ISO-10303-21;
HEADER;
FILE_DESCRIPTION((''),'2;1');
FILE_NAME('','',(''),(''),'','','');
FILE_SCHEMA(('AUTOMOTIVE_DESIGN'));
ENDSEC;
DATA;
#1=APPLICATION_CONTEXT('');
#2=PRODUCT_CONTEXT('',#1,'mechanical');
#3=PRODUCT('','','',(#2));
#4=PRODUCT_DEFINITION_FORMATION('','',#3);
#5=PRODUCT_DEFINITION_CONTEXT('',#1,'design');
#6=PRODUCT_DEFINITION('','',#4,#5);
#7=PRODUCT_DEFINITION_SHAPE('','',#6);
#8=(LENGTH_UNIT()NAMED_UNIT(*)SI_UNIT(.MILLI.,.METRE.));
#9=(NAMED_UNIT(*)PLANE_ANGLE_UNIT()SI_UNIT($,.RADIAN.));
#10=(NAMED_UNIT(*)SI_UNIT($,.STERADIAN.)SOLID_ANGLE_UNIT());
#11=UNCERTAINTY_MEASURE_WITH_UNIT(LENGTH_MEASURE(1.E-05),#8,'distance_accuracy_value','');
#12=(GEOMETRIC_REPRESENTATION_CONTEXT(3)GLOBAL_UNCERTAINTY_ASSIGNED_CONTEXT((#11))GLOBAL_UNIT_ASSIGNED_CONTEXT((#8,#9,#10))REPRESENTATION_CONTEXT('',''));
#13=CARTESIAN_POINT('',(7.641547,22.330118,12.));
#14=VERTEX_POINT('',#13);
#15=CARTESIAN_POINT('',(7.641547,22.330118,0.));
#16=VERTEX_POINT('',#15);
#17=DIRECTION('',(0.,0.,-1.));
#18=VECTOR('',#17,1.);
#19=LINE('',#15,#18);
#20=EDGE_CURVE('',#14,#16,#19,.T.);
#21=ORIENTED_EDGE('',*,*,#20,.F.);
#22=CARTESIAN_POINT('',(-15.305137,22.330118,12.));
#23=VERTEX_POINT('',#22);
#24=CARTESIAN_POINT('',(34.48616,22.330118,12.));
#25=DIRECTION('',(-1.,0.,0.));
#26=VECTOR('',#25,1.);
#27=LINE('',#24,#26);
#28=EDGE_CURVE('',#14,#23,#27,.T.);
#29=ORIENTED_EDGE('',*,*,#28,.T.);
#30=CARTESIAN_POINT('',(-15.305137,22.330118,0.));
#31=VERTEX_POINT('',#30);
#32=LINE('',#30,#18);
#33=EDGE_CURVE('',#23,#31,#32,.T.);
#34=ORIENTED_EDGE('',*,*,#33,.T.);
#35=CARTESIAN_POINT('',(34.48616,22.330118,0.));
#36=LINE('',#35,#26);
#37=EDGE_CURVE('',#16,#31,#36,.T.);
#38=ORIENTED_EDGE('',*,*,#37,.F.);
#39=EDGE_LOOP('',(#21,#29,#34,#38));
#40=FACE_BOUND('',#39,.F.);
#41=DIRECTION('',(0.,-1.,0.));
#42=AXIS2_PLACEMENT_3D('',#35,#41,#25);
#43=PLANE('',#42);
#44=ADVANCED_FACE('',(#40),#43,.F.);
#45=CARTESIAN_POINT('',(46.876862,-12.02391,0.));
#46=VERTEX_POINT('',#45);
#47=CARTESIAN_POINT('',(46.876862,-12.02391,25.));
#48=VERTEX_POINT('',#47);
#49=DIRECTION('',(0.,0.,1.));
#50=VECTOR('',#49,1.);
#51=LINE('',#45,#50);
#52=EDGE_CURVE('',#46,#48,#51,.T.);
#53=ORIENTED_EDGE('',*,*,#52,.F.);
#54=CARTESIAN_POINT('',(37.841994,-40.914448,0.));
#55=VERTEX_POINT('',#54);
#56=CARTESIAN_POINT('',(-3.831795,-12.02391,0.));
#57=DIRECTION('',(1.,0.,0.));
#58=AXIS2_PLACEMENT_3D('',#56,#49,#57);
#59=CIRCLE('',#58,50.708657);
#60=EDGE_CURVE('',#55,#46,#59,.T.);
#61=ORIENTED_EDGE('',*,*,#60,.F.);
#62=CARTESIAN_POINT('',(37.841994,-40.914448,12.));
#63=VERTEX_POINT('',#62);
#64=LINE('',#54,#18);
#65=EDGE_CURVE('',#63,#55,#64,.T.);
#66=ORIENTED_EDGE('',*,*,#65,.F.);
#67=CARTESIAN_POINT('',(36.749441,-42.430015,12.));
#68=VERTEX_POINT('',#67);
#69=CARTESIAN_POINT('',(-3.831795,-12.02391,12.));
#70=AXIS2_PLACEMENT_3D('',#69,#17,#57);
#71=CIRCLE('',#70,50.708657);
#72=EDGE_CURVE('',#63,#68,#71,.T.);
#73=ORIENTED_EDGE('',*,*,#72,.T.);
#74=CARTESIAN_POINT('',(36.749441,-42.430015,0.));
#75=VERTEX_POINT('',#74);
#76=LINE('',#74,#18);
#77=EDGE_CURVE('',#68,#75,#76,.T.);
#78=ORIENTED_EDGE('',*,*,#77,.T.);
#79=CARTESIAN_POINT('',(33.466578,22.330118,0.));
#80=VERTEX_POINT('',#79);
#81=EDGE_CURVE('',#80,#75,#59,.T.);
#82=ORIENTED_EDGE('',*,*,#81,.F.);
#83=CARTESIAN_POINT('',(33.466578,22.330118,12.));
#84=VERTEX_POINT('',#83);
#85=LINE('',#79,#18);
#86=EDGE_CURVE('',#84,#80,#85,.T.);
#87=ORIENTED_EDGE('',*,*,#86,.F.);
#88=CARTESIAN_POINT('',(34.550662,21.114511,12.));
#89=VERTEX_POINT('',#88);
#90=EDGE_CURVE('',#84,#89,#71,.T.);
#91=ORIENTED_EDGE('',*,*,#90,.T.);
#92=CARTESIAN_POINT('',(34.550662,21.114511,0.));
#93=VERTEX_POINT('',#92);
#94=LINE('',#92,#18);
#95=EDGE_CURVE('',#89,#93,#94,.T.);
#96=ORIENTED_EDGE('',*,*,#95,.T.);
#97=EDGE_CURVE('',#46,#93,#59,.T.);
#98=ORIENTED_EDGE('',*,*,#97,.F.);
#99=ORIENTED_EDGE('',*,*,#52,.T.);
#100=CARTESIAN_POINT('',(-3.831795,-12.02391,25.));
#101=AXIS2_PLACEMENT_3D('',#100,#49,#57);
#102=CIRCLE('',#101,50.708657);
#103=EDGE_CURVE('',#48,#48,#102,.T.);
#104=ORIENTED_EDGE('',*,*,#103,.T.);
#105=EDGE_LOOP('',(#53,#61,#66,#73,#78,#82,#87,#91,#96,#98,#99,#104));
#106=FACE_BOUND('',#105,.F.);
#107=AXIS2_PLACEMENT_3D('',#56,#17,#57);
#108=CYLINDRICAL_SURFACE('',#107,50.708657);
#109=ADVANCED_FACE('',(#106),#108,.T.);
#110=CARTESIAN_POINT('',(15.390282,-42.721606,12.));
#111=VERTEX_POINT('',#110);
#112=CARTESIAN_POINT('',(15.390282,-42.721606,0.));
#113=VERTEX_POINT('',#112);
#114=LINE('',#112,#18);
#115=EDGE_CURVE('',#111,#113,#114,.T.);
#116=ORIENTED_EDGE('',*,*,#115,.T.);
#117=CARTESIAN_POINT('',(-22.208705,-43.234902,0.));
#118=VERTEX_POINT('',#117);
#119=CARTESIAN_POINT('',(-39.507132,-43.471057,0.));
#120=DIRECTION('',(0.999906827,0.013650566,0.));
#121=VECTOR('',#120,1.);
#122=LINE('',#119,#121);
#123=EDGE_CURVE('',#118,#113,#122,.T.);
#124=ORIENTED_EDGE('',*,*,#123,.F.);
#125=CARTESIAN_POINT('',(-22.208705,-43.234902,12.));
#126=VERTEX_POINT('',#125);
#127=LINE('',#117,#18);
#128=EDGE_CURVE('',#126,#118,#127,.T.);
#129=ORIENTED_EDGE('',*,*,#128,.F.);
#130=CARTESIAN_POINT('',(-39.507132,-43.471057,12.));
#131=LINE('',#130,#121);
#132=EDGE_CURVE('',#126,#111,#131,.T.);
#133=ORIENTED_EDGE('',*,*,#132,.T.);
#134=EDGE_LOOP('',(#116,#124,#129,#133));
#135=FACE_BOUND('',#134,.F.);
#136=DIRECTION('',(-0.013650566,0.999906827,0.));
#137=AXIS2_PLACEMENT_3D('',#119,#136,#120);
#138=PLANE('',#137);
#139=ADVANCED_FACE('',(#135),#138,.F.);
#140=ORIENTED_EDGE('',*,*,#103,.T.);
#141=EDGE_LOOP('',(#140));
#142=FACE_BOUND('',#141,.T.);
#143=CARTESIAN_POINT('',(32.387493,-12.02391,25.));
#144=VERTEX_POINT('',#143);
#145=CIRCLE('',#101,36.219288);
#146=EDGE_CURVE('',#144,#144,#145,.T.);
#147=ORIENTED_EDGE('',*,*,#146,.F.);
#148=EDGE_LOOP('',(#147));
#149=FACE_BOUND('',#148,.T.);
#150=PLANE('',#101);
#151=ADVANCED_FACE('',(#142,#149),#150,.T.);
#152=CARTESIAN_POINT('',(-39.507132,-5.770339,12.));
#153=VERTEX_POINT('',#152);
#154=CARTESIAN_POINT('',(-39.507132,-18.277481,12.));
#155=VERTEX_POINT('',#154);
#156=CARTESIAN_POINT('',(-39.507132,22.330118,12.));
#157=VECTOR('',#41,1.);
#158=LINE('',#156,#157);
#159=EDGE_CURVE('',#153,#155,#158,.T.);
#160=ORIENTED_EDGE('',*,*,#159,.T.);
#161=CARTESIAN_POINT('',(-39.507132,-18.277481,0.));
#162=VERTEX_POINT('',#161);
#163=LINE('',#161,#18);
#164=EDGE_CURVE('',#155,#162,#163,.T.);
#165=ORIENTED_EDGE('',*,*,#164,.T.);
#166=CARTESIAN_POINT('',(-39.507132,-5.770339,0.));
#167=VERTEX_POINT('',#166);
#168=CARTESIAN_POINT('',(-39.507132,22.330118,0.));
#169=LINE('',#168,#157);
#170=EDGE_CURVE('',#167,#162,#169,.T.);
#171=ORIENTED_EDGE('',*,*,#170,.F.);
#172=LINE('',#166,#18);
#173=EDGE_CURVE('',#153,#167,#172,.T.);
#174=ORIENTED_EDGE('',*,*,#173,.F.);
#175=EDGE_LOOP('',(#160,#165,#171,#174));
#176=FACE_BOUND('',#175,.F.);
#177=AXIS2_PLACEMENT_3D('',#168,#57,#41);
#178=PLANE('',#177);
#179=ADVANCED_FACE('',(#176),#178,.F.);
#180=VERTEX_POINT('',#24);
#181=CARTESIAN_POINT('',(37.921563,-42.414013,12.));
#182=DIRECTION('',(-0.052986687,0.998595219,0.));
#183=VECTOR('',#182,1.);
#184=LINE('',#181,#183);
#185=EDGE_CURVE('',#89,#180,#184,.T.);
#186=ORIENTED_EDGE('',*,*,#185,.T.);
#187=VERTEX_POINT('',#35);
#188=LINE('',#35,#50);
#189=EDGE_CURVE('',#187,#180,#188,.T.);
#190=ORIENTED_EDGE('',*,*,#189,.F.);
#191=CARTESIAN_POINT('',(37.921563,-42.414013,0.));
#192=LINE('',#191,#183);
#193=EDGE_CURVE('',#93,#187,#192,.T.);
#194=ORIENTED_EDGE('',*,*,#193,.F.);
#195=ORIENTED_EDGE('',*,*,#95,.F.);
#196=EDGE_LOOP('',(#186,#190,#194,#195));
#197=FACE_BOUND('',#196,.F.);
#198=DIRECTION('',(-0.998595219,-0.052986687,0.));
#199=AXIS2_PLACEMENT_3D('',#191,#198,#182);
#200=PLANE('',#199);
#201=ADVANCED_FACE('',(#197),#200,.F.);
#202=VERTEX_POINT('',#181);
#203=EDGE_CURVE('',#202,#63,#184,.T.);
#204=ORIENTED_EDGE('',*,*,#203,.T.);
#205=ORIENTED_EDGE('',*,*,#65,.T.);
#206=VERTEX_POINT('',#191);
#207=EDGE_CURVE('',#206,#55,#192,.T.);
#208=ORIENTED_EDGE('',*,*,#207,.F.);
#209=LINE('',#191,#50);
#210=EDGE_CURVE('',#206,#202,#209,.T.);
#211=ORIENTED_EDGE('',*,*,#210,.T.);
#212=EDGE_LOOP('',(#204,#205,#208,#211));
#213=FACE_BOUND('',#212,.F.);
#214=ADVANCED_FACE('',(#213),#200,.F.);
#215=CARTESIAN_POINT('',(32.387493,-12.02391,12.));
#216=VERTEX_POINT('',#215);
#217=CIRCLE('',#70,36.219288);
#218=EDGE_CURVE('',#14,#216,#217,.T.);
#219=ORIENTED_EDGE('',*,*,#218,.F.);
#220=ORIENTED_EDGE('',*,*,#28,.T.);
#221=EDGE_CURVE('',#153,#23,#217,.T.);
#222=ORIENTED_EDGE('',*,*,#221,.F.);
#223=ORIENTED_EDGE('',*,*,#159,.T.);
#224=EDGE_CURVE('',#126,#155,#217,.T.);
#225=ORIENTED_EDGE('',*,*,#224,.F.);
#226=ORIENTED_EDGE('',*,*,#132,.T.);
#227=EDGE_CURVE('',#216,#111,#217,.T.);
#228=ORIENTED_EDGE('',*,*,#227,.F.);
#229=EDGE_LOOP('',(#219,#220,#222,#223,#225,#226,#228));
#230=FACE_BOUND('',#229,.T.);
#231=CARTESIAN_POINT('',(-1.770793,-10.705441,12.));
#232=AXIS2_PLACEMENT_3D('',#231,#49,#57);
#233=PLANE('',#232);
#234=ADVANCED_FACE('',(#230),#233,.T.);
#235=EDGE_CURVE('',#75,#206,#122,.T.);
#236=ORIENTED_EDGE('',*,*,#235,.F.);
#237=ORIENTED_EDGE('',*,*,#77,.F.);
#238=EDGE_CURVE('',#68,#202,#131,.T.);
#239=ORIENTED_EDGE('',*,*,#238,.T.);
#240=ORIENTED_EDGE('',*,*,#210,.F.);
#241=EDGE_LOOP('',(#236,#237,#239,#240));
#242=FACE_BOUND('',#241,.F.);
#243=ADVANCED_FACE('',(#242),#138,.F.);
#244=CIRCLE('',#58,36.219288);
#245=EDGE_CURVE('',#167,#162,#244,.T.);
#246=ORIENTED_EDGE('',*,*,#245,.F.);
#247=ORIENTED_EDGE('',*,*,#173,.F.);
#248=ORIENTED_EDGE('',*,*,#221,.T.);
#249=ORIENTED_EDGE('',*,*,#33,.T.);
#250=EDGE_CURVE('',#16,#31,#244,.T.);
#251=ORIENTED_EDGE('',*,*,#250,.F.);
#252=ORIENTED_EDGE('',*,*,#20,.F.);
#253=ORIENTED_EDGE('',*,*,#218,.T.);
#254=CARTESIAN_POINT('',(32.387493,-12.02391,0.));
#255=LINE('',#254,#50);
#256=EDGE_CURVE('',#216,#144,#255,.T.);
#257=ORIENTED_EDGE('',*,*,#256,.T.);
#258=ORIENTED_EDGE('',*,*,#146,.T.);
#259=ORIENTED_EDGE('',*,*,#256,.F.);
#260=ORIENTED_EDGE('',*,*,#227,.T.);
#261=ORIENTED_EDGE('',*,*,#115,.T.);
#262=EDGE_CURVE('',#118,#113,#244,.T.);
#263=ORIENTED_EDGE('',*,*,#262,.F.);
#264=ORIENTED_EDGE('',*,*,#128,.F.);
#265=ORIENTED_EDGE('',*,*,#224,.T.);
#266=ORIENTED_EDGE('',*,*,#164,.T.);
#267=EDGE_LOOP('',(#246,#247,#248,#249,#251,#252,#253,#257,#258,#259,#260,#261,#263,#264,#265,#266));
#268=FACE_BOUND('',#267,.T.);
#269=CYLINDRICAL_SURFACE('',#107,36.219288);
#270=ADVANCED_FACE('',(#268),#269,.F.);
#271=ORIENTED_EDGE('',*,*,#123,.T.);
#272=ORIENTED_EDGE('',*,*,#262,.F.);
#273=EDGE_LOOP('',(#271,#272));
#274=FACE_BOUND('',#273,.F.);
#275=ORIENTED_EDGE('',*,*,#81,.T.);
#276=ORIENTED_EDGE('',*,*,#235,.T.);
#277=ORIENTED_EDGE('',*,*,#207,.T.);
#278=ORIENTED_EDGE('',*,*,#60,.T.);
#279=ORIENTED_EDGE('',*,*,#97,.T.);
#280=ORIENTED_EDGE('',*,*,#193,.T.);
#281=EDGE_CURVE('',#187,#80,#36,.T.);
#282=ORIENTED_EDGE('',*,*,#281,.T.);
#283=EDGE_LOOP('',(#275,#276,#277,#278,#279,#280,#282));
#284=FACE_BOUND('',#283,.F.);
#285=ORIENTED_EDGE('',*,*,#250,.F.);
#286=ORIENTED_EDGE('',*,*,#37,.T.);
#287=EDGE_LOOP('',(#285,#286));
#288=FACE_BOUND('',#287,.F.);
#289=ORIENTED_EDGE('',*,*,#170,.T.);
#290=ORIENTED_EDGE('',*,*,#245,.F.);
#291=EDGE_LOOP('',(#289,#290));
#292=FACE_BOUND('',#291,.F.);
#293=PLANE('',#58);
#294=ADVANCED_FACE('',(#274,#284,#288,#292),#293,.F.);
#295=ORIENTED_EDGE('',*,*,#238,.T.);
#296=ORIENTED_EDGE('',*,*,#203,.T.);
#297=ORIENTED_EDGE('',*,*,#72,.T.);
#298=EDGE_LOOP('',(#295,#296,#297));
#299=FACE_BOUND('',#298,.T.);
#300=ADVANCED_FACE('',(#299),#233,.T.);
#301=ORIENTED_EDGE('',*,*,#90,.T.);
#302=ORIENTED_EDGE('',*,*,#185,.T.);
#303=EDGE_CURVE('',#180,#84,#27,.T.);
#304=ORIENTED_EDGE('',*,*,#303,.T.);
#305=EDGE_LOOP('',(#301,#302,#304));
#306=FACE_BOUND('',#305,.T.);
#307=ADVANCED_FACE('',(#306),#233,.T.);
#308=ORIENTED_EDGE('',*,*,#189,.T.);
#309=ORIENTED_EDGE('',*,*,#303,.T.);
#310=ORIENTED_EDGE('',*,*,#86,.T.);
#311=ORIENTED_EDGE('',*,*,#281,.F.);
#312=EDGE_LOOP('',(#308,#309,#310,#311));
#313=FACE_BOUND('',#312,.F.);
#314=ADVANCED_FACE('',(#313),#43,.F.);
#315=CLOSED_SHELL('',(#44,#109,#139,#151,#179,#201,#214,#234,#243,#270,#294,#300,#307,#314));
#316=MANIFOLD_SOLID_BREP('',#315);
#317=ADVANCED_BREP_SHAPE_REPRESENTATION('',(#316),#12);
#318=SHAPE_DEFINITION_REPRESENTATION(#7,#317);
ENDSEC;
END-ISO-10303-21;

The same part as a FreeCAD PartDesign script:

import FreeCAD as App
import Part
import Sketcher
Q = App.Units.Quantity


def add_polygon(sketch, points):
    """Adds a closed chain of lines whose ends are joined by coincident constraints."""
    first, n = sketch.GeometryCount, len(points)
    for a, b in zip(points, points[1:] + points[:1]):
        sketch.addGeometry(Part.LineSegment(App.Vector(*a, 0), App.Vector(*b, 0)), False)
    for i in range(n):
        sketch.addConstraint(Sketcher.Constraint("Coincident", first + i, 2, first + (i + 1) % n, 1))

doc = App.newDocument("Part")
body = doc.addObject("PartDesign::Body", "Body")

sketch1 = body.newObject("Sketcher::SketchObject", "Sketch")
sketch1.AttachmentSupport = (doc.getObject("XY_Plane"), [""])
sketch1.MapMode = "FlatFace"
add_polygon(sketch1, [(34, 22), (-40, 22), (-40, -43), (38, -42)])
sketch1.addConstraint([
    Sketcher.Constraint("Horizontal", 0),
    Sketcher.Constraint("Vertical", 1),
    Sketcher.Constraint("DistanceX", 0, 2, 0, 1, Q("73.993292 mm")),
    Sketcher.Constraint("Distance", 2, Q("77.43591 mm")),
    Sketcher.Constraint("Distance", 3, Q("64.83521 mm")),
    Sketcher.Constraint("DistanceY", 1, 2, 1, 1, Q("65.801175 mm")),
    Sketcher.Constraint("DistanceX", -1, 1, 3, 2, Q("34.48616 mm")),
    Sketcher.Constraint("DistanceY", -1, 1, 0, 2, Q("22.330118 mm")),
])
pad1 = body.newObject("PartDesign::Pad", "Pad")
pad1.Profile = sketch1
pad1.Length = 12

sketch2 = body.newObject("Sketcher::SketchObject", "Sketch001")
sketch2.AttachmentSupport = (doc.getObject("XY_Plane"), [""])
sketch2.MapMode = "FlatFace"
sketch2.addGeometry([
    Part.Circle(App.Vector(-4, -12, 0), App.Vector(0, 0, 1), 51),
    Part.Circle(App.Vector(-4, -12, 0), App.Vector(0, 0, 1), 36),
], False)
sketch2.addConstraint([
    Sketcher.Constraint("Coincident", 1, 3, 0, 3),
    Sketcher.Constraint("Diameter", 0, Q("101.417314 mm")),
    Sketcher.Constraint("Diameter", 1, Q("72.438576 mm")),
    Sketcher.Constraint("DistanceY", 0, 3, -1, 1, Q("12.02391 mm")),
    Sketcher.Constraint("DistanceX", 0, 3, -1, 1, Q("3.831795 mm")),
])
pad2 = body.newObject("PartDesign::Pad", "Pad001")
pad2.Profile = sketch2
pad2.Length = 25

doc.recompute()
